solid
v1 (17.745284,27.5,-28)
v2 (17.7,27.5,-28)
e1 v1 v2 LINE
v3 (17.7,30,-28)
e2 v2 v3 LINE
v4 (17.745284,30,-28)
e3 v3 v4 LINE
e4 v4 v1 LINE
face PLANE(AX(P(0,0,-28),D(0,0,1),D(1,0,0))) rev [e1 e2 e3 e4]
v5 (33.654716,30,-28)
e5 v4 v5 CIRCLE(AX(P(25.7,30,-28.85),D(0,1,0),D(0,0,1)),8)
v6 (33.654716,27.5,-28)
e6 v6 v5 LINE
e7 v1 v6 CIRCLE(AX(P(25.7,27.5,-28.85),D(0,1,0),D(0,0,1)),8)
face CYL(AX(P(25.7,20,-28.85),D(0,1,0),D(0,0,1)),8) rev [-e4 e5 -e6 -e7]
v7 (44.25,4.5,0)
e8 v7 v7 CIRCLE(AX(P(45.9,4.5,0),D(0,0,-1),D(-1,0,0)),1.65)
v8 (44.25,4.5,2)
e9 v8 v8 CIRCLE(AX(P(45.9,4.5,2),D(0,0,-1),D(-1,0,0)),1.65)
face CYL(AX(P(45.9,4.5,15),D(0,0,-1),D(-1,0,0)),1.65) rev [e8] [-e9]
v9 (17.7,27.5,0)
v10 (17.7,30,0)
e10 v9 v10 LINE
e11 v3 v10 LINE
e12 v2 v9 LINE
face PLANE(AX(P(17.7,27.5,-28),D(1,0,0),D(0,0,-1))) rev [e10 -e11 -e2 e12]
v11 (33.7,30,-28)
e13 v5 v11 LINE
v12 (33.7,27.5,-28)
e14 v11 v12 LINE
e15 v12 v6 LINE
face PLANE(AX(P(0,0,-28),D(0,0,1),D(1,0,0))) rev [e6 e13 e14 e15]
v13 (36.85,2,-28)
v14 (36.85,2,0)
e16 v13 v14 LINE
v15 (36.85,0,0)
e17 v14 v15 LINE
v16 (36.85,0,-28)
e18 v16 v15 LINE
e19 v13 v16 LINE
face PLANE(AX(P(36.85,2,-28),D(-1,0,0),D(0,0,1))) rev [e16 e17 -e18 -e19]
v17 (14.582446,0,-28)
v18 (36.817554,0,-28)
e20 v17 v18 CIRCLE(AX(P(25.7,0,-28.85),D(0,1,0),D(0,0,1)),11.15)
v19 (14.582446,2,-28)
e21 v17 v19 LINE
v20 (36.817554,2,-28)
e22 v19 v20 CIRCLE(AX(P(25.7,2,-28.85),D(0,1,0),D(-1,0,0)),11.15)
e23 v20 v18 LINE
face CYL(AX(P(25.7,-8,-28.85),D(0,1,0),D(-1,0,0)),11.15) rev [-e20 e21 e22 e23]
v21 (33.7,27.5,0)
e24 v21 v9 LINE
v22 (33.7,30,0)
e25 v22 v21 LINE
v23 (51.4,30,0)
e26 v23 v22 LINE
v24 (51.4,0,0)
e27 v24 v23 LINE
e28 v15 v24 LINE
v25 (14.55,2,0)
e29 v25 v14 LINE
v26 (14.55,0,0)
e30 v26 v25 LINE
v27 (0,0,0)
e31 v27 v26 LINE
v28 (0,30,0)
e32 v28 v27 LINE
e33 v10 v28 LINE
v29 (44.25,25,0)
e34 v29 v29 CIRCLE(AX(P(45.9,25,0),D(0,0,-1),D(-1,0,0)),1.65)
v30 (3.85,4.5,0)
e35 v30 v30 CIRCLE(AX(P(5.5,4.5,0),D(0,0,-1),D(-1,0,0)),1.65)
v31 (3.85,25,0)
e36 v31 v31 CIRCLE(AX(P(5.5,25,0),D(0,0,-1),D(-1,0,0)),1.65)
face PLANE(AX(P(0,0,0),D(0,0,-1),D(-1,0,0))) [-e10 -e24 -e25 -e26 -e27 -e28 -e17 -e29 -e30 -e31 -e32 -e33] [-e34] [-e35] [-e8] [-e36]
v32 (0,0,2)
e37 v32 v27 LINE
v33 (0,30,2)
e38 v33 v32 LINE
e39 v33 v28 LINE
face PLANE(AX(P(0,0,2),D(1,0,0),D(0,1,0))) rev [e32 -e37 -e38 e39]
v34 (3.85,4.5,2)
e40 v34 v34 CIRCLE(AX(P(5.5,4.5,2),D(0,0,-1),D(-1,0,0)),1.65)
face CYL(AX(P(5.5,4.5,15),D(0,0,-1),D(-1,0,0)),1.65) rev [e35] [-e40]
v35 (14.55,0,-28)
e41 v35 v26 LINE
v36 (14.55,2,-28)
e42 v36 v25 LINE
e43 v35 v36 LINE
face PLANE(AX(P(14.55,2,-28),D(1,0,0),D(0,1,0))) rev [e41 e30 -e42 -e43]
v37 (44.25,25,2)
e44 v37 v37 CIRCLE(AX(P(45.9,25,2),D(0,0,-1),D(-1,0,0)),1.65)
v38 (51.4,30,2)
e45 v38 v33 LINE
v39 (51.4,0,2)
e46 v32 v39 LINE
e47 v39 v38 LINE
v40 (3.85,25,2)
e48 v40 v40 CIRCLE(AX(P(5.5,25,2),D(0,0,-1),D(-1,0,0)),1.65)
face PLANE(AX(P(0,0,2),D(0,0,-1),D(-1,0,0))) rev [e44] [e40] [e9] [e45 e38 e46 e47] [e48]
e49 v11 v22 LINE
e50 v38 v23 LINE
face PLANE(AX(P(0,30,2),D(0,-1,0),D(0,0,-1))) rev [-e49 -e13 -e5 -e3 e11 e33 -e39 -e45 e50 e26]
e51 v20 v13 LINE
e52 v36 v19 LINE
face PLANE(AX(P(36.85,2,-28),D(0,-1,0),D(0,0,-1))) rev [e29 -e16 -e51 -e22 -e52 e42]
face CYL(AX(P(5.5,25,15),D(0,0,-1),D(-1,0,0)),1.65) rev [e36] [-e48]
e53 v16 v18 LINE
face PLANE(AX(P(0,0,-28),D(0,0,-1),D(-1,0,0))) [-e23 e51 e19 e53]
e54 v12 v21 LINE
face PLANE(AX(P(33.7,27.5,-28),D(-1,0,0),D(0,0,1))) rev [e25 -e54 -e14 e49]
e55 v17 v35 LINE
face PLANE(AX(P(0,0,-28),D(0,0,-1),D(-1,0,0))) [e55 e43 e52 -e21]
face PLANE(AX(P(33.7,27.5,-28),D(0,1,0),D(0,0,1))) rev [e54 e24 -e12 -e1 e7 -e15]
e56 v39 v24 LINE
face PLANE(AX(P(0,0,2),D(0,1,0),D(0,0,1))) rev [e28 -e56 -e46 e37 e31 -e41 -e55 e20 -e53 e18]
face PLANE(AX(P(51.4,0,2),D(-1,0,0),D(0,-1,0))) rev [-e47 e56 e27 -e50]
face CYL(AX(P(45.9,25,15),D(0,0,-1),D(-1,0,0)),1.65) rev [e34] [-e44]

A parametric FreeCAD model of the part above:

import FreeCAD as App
import Part
import Sketcher

V = App.Vector


def add_polygon(sketch, points):
    """Adds a closed chain of lines whose ends are joined by coincident constraints."""
    first, n = sketch.GeometryCount, len(points)
    for a, b in zip(points, points[1:] + points[:1]):
        sketch.addGeometry(Part.LineSegment(App.Vector(*a, 0), App.Vector(*b, 0)), False)
    for i in range(n):
        sketch.addConstraint(Sketcher.Constraint("Coincident", first + i, 2, first + (i + 1) % n, 1))

doc = App.newDocument("Part")
body = doc.addObject("PartDesign::Body", "Body")

# Sketch on XY plane
sketch1 = body.newObject("Sketcher::SketchObject", "Sketch")
sketch1.AttachmentSupport = (doc.getObject("XY_Plane"), [""])
sketch1.MapMode = "FlatFace"
add_polygon(sketch1, [(0, 30), (0, 0), (51.4, 0), (51.4, 30)])  # lines 0-3
sketch1.addConstraint([
    Sketcher.Constraint("Vertical", 0),
    Sketcher.Constraint("Horizontal", 1),
    Sketcher.Constraint("Vertical", 2),
    Sketcher.Constraint("Horizontal", 3),
    Sketcher.Constraint("Coincident", 0, 2, -1, 1),
    Sketcher.Constraint("DistanceY", 0, 2, 0, 1, 30.0),
    Sketcher.Constraint("DistanceX", 1, 1, 1, 2, 51.4),
])
pad1 = body.newObject("PartDesign::Pad", "Pad")
pad1.Profile = sketch1
pad1.Length = 2

# Sketch on XY plane
sketch2 = body.newObject("Sketcher::SketchObject", "Sketch001")
sketch2.AttachmentSupport = (doc.getObject("XY_Plane"), [""])
sketch2.MapMode = "FlatFace"
sketch2.addGeometry([
    Part.Circle(V(45.9, 25, 0), V(0, 0, 1), 1.65),
    Part.Circle(V(5.5, 25, 0), V(0, 0, 1), 1.65),
    Part.Circle(V(5.5, 4.5, 0), V(0, 0, 1), 1.65),
    Part.Circle(V(45.9, 4.5, 0), V(0, 0, 1), 1.65),
], False)
sketch2.addConstraint([
    Sketcher.Constraint("Equal", 0, 1),
    Sketcher.Constraint("Equal", 1, 2),
    Sketcher.Constraint("Equal", 2, 3),
    Sketcher.Constraint("Horizontal", 0, 3, 1, 3),
    Sketcher.Constraint("Horizontal", 2, 3, 3, 3),
    Sketcher.Constraint("Vertical", 1, 3, 2, 3),
    Sketcher.Constraint("Vertical", 0, 3, 3, 3),
    Sketcher.Constraint("Diameter", 0, 3.3),
    Sketcher.Constraint("DistanceY", -1, 1, 0, 3, 25.0),
    Sketcher.Constraint("DistanceX", -1, 1, 0, 3, 45.9),
    Sketcher.Constraint("DistanceX", -1, 1, 1, 3, 5.5),
    Sketcher.Constraint("DistanceY", -1, 1, 2, 3, 4.5),
])
pocket1 = body.newObject("PartDesign::Pocket", "Pocket")
pocket1.Profile = sketch2
pocket1.Length = 15
pocket1.Reversed = True

# Sketch on XY plane
sketch3 = body.newObject("Sketcher::SketchObject", "Sketch002")
sketch3.AttachmentSupport = (doc.getObject("XY_Plane"), [""])
sketch3.MapMode = "FlatFace"
add_polygon(sketch3, [(33.7, 30), (33.7, 27.5), (17.7, 27.5), (17.7, 30)])  # lines 0-3
add_polygon(sketch3, [(36.85, 2), (36.85, 0), (14.55, 0), (14.55, 2)])  # lines 4-7
sketch3.addConstraint([
    Sketcher.Constraint("Vertical", 0),
    Sketcher.Constraint("Horizontal", 1),
    Sketcher.Constraint("Vertical", 2),
    Sketcher.Constraint("Horizontal", 3),
    Sketcher.Constraint("Vertical", 4),
    Sketcher.Constraint("Horizontal", 5),
    Sketcher.Constraint("Vertical", 6),
    Sketcher.Constraint("Horizontal", 7),
    Sketcher.Constraint("PointOnObject", 4, 2, -1),
    Sketcher.Constraint("DistanceX", 1, 2, 1, 1, 16.0),
    Sketcher.Constraint("DistanceY", 4, 2, 4, 1, 2.0),
    Sketcher.Constraint("DistanceX", 5, 2, 5, 1, 22.3),
    Sketcher.Constraint("DistanceY", 0, 2, 0, 1, 2.5),
    Sketcher.Constraint("DistanceY", -1, 1, 2, 2, 30.0),
    Sketcher.Constraint("DistanceX", -1, 1, 0, 2, 33.7),
    Sketcher.Constraint("DistanceX", -1, 1, 4, 2, 36.85),
])
pad2 = body.newObject("PartDesign::Pad", "Pad001")
pad2.Profile = sketch3
pad2.Length = 28
pad2.Reversed = True

# Sketch on XZ plane
sketch4 = body.newObject("Sketcher::SketchObject", "Sketch003")
sketch4.AttachmentSupport = (doc.getObject("XZ_Plane"), [""])
sketch4.MapMode = "FlatFace"
sketch4.AttachmentOffset = App.Placement(V(0, 0, -30), App.Rotation())
sketch4.addGeometry(Part.Circle(V(25.7, -28.85, 0), V(0, 0, 1), 8), False)
sketch4.addConstraint([
    Sketcher.Constraint("Diameter", 0, 16.0),
    Sketcher.Constraint("DistanceX", -1, 1, 0, 3, 25.7),
    Sketcher.Constraint("DistanceY", 0, 3, -1, 1, 28.85),
])
pocket2 = body.newObject("PartDesign::Pocket", "Pocket001")
pocket2.Profile = sketch4
pocket2.Length = 10
pocket2.Reversed = True

# Sketch on XZ plane
sketch5 = body.newObject("Sketcher::SketchObject", "Sketch004")
sketch5.AttachmentSupport = (doc.getObject("XZ_Plane"), [""])
sketch5.MapMode = "FlatFace"
sketch5.AttachmentOffset = App.Placement(V(0, 0, -2), App.Rotation())
sketch5.addGeometry(Part.Circle(V(25.7, -28.85, 0), V(0, 0, 1), 11.15), False)
sketch5.addConstraint([
    Sketcher.Constraint("Diameter", 0, 22.3),
    Sketcher.Constraint("DistanceX", -1, 1, 0, 3, 25.7),
    Sketcher.Constraint("DistanceY", 0, 3, -1, 1, 28.85),
])
pocket3 = body.newObject("PartDesign::Pocket", "Pocket002")
pocket3.Profile = sketch5
pocket3.Length = 10
pocket3.Reversed = True

doc.recompute()
